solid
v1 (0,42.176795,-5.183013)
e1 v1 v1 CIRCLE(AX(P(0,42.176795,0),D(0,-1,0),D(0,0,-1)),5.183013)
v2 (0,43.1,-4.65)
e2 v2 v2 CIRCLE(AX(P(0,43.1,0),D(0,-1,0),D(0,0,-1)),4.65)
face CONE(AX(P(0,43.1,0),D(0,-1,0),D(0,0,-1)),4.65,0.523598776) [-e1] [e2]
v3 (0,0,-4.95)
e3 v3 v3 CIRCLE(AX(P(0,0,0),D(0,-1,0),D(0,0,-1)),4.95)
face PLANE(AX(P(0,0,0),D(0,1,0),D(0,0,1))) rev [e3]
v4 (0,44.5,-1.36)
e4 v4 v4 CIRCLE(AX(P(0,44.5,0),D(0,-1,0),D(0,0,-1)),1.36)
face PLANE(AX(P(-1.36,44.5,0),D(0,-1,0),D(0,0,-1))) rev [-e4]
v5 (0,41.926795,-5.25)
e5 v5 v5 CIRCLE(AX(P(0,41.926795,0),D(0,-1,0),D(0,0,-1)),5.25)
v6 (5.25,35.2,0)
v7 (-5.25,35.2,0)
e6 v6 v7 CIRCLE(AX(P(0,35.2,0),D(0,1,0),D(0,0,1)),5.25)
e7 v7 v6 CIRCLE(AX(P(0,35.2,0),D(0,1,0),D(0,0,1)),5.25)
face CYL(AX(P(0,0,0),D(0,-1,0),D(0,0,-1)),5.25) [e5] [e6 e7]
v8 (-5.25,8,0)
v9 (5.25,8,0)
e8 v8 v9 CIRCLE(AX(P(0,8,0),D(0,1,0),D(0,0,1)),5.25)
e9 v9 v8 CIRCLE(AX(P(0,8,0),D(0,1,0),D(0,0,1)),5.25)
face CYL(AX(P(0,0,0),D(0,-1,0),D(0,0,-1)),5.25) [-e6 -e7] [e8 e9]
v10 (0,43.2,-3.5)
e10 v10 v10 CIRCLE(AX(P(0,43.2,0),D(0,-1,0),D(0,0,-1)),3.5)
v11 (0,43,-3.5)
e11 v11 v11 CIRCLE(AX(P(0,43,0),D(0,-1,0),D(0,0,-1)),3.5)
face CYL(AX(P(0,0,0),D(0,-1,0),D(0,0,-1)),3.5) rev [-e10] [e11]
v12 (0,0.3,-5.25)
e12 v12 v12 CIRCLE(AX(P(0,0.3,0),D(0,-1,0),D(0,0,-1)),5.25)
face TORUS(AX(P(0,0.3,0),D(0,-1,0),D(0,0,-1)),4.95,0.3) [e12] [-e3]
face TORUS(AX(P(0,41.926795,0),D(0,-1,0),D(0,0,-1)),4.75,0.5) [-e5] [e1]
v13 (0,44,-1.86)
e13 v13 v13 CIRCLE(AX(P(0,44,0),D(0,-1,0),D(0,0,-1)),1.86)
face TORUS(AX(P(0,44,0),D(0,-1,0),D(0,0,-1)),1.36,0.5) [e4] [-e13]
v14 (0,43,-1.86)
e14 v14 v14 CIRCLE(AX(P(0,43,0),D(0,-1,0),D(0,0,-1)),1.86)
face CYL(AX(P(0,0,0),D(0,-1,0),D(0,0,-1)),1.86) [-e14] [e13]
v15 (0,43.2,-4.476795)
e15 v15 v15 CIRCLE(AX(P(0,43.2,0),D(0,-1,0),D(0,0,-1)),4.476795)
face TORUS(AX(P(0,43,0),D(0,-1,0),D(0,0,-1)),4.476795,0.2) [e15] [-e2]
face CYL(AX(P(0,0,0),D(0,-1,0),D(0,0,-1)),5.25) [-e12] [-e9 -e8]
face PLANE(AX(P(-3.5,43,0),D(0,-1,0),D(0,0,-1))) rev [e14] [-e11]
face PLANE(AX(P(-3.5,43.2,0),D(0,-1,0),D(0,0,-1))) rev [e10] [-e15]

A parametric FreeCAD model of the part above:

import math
import FreeCAD as App
import Part
import Sketcher

V = App.Vector
Q = App.Units.Quantity

doc = App.newDocument("Part")
body = doc.addObject("PartDesign::Body", "Body")

sketch1 = body.newObject("Sketcher::SketchObject", "Sketch")
sketch1.AttachmentSupport = (doc.getObject("XY_Plane"), [""])
sketch1.MapMode = "FlatFace"
sketch1.addGeometry([
    Part.LineSegment(V(0, 44.5, 0), V(-1.36, 44.5, 0)),
    Part.ArcOfCircle(Part.Circle(V(-1.36, 44, 0), V(0, 0, 1), 0.5), math.radians(90), math.radians(180)),
    Part.LineSegment(V(-1.86, 44, 0), V(-1.86, 43, 0)),
    Part.LineSegment(V(-1.86, 43, 0), V(-3.5, 43, 0)),
    Part.LineSegment(V(-3.5, 43, 0), V(-3.5, 43.2, 0)),
    Part.LineSegment(V(-3.5, 43.2, 0), V(-4.48, 43.2, 0)),
    Part.ArcOfCircle(Part.Circle(V(-4.48, 43, 0), V(0, 0, 1), 0.2), math.radians(90), math.radians(150)),
    Part.LineSegment(V(-4.65, 43.1, 0), V(-5.18, 42.18, 0)),
    Part.ArcOfCircle(Part.Circle(V(-4.75, 41.93, 0), V(0, 0, 1), 0.5), math.radians(150), math.radians(180)),
    Part.LineSegment(V(-5.25, 41.93, 0), V(-5.25, 0.3, 0)),
    Part.ArcOfCircle(Part.Circle(V(-4.95, 0.3, 0), V(0, 0, 1), 0.3), math.radians(-180), math.radians(-90)),
    Part.LineSegment(V(-4.95, 0, 0), V(0, 0, 0)),
    Part.LineSegment(V(0, 0, 0), V(0, 44.5, 0)),
], False)
sketch1.addConstraint([
    Sketcher.Constraint("Tangent", 0, 2, 1, 1),
    Sketcher.Constraint("Tangent", 1, 2, 2, 1),
    Sketcher.Constraint("Coincident", 2, 2, 3, 1),
    Sketcher.Constraint("Coincident", 3, 2, 4, 1),
    Sketcher.Constraint("Coincident", 4, 2, 5, 1),
    Sketcher.Constraint("Tangent", 5, 2, 6, 1),
    Sketcher.Constraint("Tangent", 6, 2, 7, 1),
    Sketcher.Constraint("Tangent", 7, 2, 8, 1),
    Sketcher.Constraint("Tangent", 8, 2, 9, 1),
    Sketcher.Constraint("Tangent", 9, 2, 10, 1),
    Sketcher.Constraint("Tangent", 10, 2, 11, 1),
    Sketcher.Constraint("Coincident", 11, 2, 12, 1),
    Sketcher.Constraint("Coincident", 12, 2, 0, 1),
    Sketcher.Constraint("Horizontal", 0),
    Sketcher.Constraint("Vertical", 2),
    Sketcher.Constraint("Horizontal", 3),
    Sketcher.Constraint("Vertical", 4),
    Sketcher.Constraint("Horizontal", 5),
    Sketcher.Constraint("Vertical", 9),
    Sketcher.Constraint("Horizontal", 11),
    Sketcher.Constraint("Vertical", 12),
    Sketcher.Constraint("Coincident", 11, 2, -1, 1),
    Sketcher.Constraint("Equal", 1, 8),
    Sketcher.Constraint("Horizontal", 6, 3, 2, 2),
    Sketcher.Constraint("Radius", 1, 0.5),
    Sketcher.Constraint("Radius", 6, 0.2),
    Sketcher.Constraint("Radius", 10, 0.3),
    Sketcher.Constraint("DistanceY", 2, 2, 2, 1, 1.0),
    Sketcher.Constraint("Angle", 7, Q("-120 deg")),
    Sketcher.Constraint("DistanceY", 12, 1, 12, 2, 44.5),
    Sketcher.Constraint("DistanceX", 0, 2, 0, 1, 1.36),
    Sketcher.Constraint("DistanceX", 3, 2, 3, 1, 1.64),
    Sketcher.Constraint("DistanceX", 11, 1, 11, 2, 4.95),
    Sketcher.Constraint("DistanceX", 8, 3, 6, 2, 0.1),
])
revolution = body.newObject("PartDesign::Revolution", "Revolution")
revolution.Profile = sketch1
revolution.ReferenceAxis = (sketch1, ["V_Axis"])
revolution.Angle = 360

doc.recompute()
